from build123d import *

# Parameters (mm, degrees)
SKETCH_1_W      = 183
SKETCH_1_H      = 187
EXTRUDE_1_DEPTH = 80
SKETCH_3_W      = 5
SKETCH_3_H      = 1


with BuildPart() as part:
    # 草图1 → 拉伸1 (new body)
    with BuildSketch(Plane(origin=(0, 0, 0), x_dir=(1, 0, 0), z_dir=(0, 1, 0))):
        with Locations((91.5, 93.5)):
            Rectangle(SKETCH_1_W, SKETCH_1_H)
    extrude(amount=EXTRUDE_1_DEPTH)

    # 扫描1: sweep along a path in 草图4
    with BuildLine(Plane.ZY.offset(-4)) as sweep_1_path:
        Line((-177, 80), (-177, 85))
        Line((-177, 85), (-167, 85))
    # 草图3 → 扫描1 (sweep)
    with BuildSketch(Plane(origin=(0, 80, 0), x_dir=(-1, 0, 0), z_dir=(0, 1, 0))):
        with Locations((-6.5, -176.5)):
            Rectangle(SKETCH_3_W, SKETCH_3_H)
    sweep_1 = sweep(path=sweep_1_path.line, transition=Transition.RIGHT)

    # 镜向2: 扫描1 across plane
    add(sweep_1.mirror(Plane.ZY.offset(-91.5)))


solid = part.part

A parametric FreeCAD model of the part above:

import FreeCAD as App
import Part
import Sketcher


def add_polygon(sketch, points):
    """Adds a closed chain of lines whose ends are joined by coincident constraints."""
    first, n = sketch.GeometryCount, len(points)
    for a, b in zip(points, points[1:] + points[:1]):
        sketch.addGeometry(Part.LineSegment(App.Vector(*a, 0), App.Vector(*b, 0)), False)
    for i in range(n):
        sketch.addConstraint(Sketcher.Constraint("Coincident", first + i, 2, first + (i + 1) % n, 1))

doc = App.newDocument("Part")
body = doc.addObject("PartDesign::Body", "Body")

# Sketch on XZ plane
sketch1 = doc.addObject("Sketcher::SketchObject", "Sketch")
body.addObject(sketch1)
sketch1.AttachmentSupport = (doc.XZ_Plane, [""])
sketch1.MapMode = "FlatFace"
add_polygon(sketch1, [(0, -187), (0, 0), (183, 0), (183, -187)])  # lines 0-3
sketch1.addConstraint([
    Sketcher.Constraint("Vertical", 0),
    Sketcher.Constraint("Horizontal", 1),
    Sketcher.Constraint("Vertical", 2),
    Sketcher.Constraint("Horizontal", 3),
    Sketcher.Constraint("Coincident", 0, 2, -1, 1),
    Sketcher.Constraint("DistanceX", 1, 1, 1, 2, 183.0),
    Sketcher.Constraint("DistanceY", 0, 1, 0, 2, 187.0),
])
pad1 = doc.addObject("PartDesign::Pad", "Pad")
body.addObject(pad1)
pad1.Profile = sketch1
pad1.Length = 80
pad1.Reversed = True

# Sketch on XZ plane
sketch2 = doc.addObject("Sketcher::SketchObject", "Sketch001")
body.addObject(sketch2)
sketch2.AttachmentSupport = (doc.XZ_Plane, [""])
sketch2.MapMode = "FlatFace"
sketch2.AttachmentOffset = App.Placement(App.Vector(0, 0, -80), App.Rotation())
add_polygon(sketch2, [(9, -176), (9, -177), (4, -177), (4, -176)])  # lines 0-3
sketch2.addConstraint([
    Sketcher.Constraint("Vertical", 0),
    Sketcher.Constraint("Horizontal", 1),
    Sketcher.Constraint("Vertical", 2),
    Sketcher.Constraint("Horizontal", 3),
    Sketcher.Constraint("DistanceX", 1, 2, 1, 1, 5.0),
    Sketcher.Constraint("DistanceY", 0, 2, 0, 1, 1.0),
    Sketcher.Constraint("DistanceX", -1, 1, 0, 2, 9.0),
    Sketcher.Constraint("DistanceY", 0, 2, -1, 1, 177.0),
])

# Sketch on YZ plane
sketch3 = doc.addObject("Sketcher::SketchObject", "Sketch002")
body.addObject(sketch3)
sketch3.AttachmentSupport = (doc.YZ_Plane, [""])
sketch3.MapMode = "FlatFace"
sketch3.AttachmentOffset = App.Placement(App.Vector(0, 0, 4), App.Rotation())
sketch3.addGeometry([
    Part.LineSegment(App.Vector(80, -177, 0), App.Vector(85, -177, 0)),
    Part.LineSegment(App.Vector(85, -177, 0), App.Vector(85, -167, 0)),
], False)
sketch3.addConstraint([
    Sketcher.Constraint("Coincident", 0, 2, 1, 1),
    Sketcher.Constraint("Horizontal", 0),
    Sketcher.Constraint("Vertical", 1),
    Sketcher.Constraint("DistanceX", 0, 1, 0, 2, 5.0),
    Sketcher.Constraint("DistanceY", 1, 1, 1, 2, 10.0),
    Sketcher.Constraint("DistanceX", -1, 1, 0, 1, 80.0),
    Sketcher.Constraint("DistanceY", 0, 1, -1, 1, 177.0),
])
doc.recompute()

additivepipe = doc.addObject("PartDesign::AdditivePipe", "AdditivePipe")
body.addObject(additivepipe)
additivepipe.Profile = sketch2
additivepipe.Spine = (sketch3, ["Edge1", "Edge2"])
additivepipe.Transition = "Right corner"
doc.recompute()

datumplane = doc.addObject("PartDesign::Plane", "DatumPlane")
body.addObject(datumplane)
datumplane.AttachmentSupport = (doc.YZ_Plane, [""])
datumplane.MapMode = "FlatFace"
datumplane.AttachmentOffset = App.Placement(App.Vector(0, 0, 91.5), App.Rotation())
mirrored = doc.addObject("PartDesign::Mirrored", "Mirrored")
body.addObject(mirrored)
mirrored.Originals = [additivepipe]
mirrored.MirrorPlane = (datumplane, [""])
body.Tip = mirrored

doc.recompute()
